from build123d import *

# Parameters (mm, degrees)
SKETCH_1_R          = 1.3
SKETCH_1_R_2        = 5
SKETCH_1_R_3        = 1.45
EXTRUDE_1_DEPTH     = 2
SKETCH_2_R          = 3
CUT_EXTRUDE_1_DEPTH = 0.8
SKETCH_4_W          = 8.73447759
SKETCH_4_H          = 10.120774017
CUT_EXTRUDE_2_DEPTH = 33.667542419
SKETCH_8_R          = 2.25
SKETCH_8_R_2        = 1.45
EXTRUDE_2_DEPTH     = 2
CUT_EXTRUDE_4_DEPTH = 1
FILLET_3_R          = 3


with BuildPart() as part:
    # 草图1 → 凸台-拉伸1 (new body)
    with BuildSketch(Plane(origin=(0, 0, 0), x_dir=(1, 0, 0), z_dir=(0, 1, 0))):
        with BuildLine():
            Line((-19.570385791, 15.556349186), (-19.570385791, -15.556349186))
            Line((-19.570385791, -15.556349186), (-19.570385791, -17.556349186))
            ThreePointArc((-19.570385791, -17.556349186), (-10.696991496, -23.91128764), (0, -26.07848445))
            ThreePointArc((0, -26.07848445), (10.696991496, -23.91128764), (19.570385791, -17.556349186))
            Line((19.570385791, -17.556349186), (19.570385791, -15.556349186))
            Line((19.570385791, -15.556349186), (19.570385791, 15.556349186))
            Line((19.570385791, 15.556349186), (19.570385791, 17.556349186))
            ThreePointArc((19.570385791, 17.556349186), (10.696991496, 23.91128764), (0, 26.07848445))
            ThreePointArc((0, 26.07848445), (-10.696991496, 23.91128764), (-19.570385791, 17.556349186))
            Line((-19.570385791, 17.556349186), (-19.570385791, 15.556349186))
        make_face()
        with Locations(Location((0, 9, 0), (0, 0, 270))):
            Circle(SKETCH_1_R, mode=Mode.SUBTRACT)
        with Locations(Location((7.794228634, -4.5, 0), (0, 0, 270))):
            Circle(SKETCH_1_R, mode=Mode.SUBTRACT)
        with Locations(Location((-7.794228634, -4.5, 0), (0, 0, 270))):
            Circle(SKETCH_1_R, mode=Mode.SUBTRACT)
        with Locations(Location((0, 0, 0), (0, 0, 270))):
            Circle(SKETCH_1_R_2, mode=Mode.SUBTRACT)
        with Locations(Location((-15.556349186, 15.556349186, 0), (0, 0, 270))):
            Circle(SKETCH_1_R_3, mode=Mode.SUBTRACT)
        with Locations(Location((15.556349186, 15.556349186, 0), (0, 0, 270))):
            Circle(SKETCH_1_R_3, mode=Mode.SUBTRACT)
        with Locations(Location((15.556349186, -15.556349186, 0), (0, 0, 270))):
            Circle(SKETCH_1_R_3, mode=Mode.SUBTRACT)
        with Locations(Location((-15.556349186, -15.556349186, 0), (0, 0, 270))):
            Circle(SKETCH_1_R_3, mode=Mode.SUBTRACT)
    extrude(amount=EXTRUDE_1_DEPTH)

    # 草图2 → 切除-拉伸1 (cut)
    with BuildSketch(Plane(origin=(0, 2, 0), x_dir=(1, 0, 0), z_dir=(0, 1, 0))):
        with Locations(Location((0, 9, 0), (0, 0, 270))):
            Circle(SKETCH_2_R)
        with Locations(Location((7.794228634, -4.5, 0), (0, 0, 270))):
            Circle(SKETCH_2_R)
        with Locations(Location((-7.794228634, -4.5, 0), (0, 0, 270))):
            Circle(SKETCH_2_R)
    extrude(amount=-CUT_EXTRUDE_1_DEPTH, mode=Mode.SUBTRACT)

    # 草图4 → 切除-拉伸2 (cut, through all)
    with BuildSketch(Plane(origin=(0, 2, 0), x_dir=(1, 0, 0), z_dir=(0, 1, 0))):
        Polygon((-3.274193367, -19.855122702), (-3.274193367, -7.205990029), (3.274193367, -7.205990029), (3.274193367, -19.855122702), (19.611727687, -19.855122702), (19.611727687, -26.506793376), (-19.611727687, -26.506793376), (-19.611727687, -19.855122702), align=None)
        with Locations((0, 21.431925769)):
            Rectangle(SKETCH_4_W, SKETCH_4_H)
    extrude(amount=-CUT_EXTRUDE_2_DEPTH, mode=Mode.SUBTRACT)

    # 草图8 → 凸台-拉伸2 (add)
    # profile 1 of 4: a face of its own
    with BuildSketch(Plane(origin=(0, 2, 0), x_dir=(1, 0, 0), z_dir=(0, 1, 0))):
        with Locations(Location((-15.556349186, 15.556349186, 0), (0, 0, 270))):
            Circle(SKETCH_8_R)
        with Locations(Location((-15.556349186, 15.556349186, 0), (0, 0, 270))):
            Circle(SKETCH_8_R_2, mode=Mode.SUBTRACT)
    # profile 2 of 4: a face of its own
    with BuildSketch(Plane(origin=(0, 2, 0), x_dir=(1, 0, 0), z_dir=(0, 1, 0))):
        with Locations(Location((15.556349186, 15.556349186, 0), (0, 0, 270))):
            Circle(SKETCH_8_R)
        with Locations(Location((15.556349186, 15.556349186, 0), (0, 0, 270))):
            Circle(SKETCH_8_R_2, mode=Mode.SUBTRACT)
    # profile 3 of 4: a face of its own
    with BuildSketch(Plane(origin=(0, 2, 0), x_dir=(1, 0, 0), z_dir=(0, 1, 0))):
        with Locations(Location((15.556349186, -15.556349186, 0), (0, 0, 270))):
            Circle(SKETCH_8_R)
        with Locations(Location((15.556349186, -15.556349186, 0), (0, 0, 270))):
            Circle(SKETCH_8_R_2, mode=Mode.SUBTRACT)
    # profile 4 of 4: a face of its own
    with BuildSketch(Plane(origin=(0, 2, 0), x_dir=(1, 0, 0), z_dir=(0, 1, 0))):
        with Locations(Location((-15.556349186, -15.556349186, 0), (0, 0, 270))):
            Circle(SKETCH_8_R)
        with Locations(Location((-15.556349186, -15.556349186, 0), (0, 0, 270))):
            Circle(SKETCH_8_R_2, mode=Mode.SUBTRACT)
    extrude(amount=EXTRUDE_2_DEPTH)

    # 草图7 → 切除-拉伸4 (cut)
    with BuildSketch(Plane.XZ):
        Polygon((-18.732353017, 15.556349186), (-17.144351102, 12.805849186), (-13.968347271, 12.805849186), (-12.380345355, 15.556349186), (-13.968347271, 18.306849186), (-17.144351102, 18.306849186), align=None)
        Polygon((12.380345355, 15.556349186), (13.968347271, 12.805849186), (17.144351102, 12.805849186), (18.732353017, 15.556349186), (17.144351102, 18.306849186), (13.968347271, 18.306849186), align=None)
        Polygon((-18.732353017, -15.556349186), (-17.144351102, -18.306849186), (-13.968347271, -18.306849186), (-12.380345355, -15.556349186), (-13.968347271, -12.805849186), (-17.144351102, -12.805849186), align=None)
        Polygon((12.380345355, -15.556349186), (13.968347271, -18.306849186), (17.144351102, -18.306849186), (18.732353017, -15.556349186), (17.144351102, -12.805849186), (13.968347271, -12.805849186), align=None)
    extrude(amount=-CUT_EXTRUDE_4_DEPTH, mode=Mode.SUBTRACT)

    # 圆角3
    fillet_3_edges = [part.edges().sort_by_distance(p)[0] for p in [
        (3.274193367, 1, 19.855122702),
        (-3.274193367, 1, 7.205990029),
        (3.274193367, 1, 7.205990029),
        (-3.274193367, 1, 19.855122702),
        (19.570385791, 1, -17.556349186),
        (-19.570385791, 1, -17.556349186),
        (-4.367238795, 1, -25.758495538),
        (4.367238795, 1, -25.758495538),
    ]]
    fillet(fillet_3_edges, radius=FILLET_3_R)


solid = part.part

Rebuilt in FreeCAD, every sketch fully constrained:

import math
import FreeCAD as App
import Part
import Sketcher
Q = App.Units.Quantity


def edges_at(feature, points):
    """Names of the edges that pass closest to the given points."""
    edges = feature.Shape.Edges
    near = lambda p: min(range(len(edges)), key=lambda i: edges[i].distToShape(Part.Vertex(*p))[0])
    return sorted({f"Edge{near(p) + 1}" for p in points})


def add_polygon(sketch, points):
    """Adds a closed chain of lines whose ends are joined by coincident constraints."""
    first, n = sketch.GeometryCount, len(points)
    for a, b in zip(points, points[1:] + points[:1]):
        sketch.addGeometry(Part.LineSegment(App.Vector(*a, 0), App.Vector(*b, 0)), False)
    for i in range(n):
        sketch.addConstraint(Sketcher.Constraint("Coincident", first + i, 2, first + (i + 1) % n, 1))

doc = App.newDocument("Part")
params = doc.addObject("Spreadsheet::Sheet", "Params")
for row, (alias, value) in enumerate([
    ("sketch1_diameter", "10 mm"),
    ("sketch1_diameter2", "2.9 mm"),
    ("sketch1_diameter3", "2.6 mm"),
    ("pad1_length", "2 mm"),
    ("sketch2_diameter", "6 mm"),
    ("pocket1_length", "0.8 mm"),
    ("sketch4_diameter", "4.5 mm"),
    ("sketch4_diameter2", "2.9 mm"),
    ("pad2_length", "2 mm"),
    ("pocket3_length", "1 mm"),
    ("fillet_radius", "3 mm"),
], start=1):
    params.set(f"A{row}", alias)
    params.set(f"B{row}", "=" + value)
    params.setAlias(f"B{row}", alias)

body = doc.addObject("PartDesign::Body", "Body")

# Sketch on XZ plane
sketch1 = doc.addObject("Sketcher::SketchObject", "Sketch")
body.addObject(sketch1)
sketch1.AttachmentSupport = (doc.XZ_Plane, [""])
sketch1.MapMode = "FlatFace"
sketch1.addGeometry(Part.ArcOfCircle(Part.Circle(App.Vector(-0.284564, 0, 0), App.Vector(0, 0, 1), 26.080037), math.radians(89.374823), math.radians(137.687648)), False)
sketch1.addGeometry(Part.ArcOfCircle(Part.Circle(App.Vector(0.284564, 0, 0), App.Vector(0, 0, 1), 26.080037), math.radians(42.312352), math.radians(90.625177)), False)
sketch1.addGeometry(Part.LineSegment(App.Vector(19.570386, 17.556349, 0), App.Vector(19.570386, -17.556349, 0)), False)
sketch1.addGeometry(Part.ArcOfCircle(Part.Circle(App.Vector(0.284564, 0, 0), App.Vector(0, 0, 1), 26.080037), math.radians(-90.625177), math.radians(-42.312352)), False)
sketch1.addGeometry(Part.ArcOfCircle(Part.Circle(App.Vector(-0.284564, 0, 0), App.Vector(0, 0, 1), 26.080037), math.radians(-137.687648), math.radians(-89.374823)), False)
sketch1.addGeometry(Part.LineSegment(App.Vector(-19.570386, -17.556349, 0), App.Vector(-19.570386, 17.556349, 0)), False)
sketch1.addGeometry(Part.Circle(App.Vector(-15.556349, 15.556349, 0), App.Vector(0, 0, 1), 1.45), False)
sketch1.addGeometry(Part.Circle(App.Vector(-7.794229, 4.5, 0), App.Vector(0, 0, 1), 1.3), False)
sketch1.addGeometry(Part.Circle(App.Vector(15.556349, 15.556349, 0), App.Vector(0, 0, 1), 1.45), False)
sketch1.addGeometry(Part.Circle(App.Vector(7.794229, 4.5, 0), App.Vector(0, 0, 1), 1.3), False)
sketch1.addGeometry(Part.Circle(App.Vector(-15.556349, -15.556349, 0), App.Vector(0, 0, 1), 1.45), False)
sketch1.addGeometry(Part.Circle(App.Vector(0, 0, 0), App.Vector(0, 0, 1), 5), False)
sketch1.addGeometry(Part.Circle(App.Vector(0, -9, 0), App.Vector(0, 0, 1), 1.3), False)
sketch1.addGeometry(Part.Circle(App.Vector(15.556349, -15.556349, 0), App.Vector(0, 0, 1), 1.45), False)
sketch1.addConstraint(Sketcher.Constraint("Coincident", 0, 1, 1, 2))
sketch1.addConstraint(Sketcher.Constraint("Coincident", 1, 1, 2, 1))
sketch1.addConstraint(Sketcher.Constraint("Coincident", 2, 2, 3, 2))
sketch1.addConstraint(Sketcher.Constraint("Coincident", 3, 1, 4, 2))
sketch1.addConstraint(Sketcher.Constraint("Coincident", 4, 1, 5, 1))
sketch1.addConstraint(Sketcher.Constraint("Coincident", 5, 2, 0, 2))
sketch1.addConstraint(Sketcher.Constraint("Vertical", 2))
sketch1.addConstraint(Sketcher.Constraint("Vertical", 5))
sketch1.addConstraint(Sketcher.Constraint("Coincident", 11, 3, -1, 1))
sketch1.addConstraint(Sketcher.Constraint("Coincident", 3, 3, 1, 3))
sketch1.addConstraint(Sketcher.Constraint("Coincident", 4, 3, 0, 3))
sketch1.addConstraint(Sketcher.Constraint("Equal", 0, 1))
sketch1.addConstraint(Sketcher.Constraint("Equal", 1, 3))
sketch1.addConstraint(Sketcher.Constraint("Equal", 3, 4))
sketch1.addConstraint(Sketcher.Constraint("Equal", 6, 8))
sketch1.addConstraint(Sketcher.Constraint("Equal", 7, 9))
sketch1.addConstraint(Sketcher.Constraint("Equal", 8, 10))
sketch1.addConstraint(Sketcher.Constraint("Equal", 9, 12))
sketch1.addConstraint(Sketcher.Constraint("Equal", 10, 13))
sketch1.addConstraint(Sketcher.Constraint("Symmetric", 0, 3, 1, 3, -1, 1))
sketch1.addConstraint(Sketcher.Constraint("Symmetric", 8, 3, 10, 3, -1, 1))
sketch1.addConstraint(Sketcher.Constraint("Symmetric", 6, 3, 13, 3, -1, 1))
sketch1.addConstraint(Sketcher.Constraint("Symmetric", 6, 3, 8, 3, -2))
sketch1.addConstraint(Sketcher.Constraint("Symmetric", 7, 3, 9, 3, -2))
sketch1.addConstraint(Sketcher.Constraint("Symmetric", 2, 2, 4, 1, -2))
sketch1.addConstraint(Sketcher.Constraint("PointOnObject", 12, 3, -2))
sketch1.addConstraint(Sketcher.Constraint("Diameter", 11, 10.0))
sketch1.addConstraint(Sketcher.Constraint("Diameter", 6, 2.9))
sketch1.addConstraint(Sketcher.Constraint("Diameter", 7, 2.6))
sketch1.addConstraint(Sketcher.Constraint("DistanceY", 12, 3, -1, 1, 9.0))
sketch1.addConstraint(Sketcher.Constraint("DistanceY", 8, 3, 1, 1, 2.0))
sketch1.addConstraint(Sketcher.Constraint("DistanceY", -1, 1, 7, 3, 4.5))
sketch1.addConstraint(Sketcher.Constraint("DistanceY", 2, 2, 2, 1, 35.112698))
sketch1.addConstraint(Sketcher.Constraint("Radius", 0, 26.080037))
sketch1.addConstraint(Sketcher.Constraint("DistanceX", 6, 3, -1, 1, 15.556349))
sketch1.addConstraint(Sketcher.Constraint("DistanceX", 7, 3, -1, 1, 7.794229))
sketch1.addConstraint(Sketcher.Constraint("DistanceX", 0, 3, -1, 1, 0.284564))
sketch1.setExpression("Constraints[26]", "Params.sketch1_diameter")
sketch1.setExpression("Constraints[27]", "Params.sketch1_diameter2")
sketch1.setExpression("Constraints[28]", "Params.sketch1_diameter3")
pad1 = doc.addObject("PartDesign::Pad", "Pad")
body.addObject(pad1)
pad1.Profile = sketch1
pad1.setExpression("Length", "Params.pad1_length")
pad1.Reversed = True

# Sketch on XZ plane
sketch2 = doc.addObject("Sketcher::SketchObject", "Sketch001")
body.addObject(sketch2)
sketch2.AttachmentSupport = (doc.XZ_Plane, [""])
sketch2.MapMode = "FlatFace"
sketch2.AttachmentOffset = App.Placement(App.Vector(0, 0, -2), App.Rotation())
sketch2.addGeometry(Part.Circle(App.Vector(0, -9, 0), App.Vector(0, 0, 1), 3), False)
sketch2.addGeometry(Part.Circle(App.Vector(7.794229, 4.5, 0), App.Vector(0, 0, 1), 3), False)
sketch2.addGeometry(Part.Circle(App.Vector(-7.794229, 4.5, 0), App.Vector(0, 0, 1), 3), False)
sketch2.addConstraint(Sketcher.Constraint("Equal", 0, 1))
sketch2.addConstraint(Sketcher.Constraint("Equal", 1, 2))
sketch2.addConstraint(Sketcher.Constraint("Symmetric", 1, 3, 2, 3, -2))
sketch2.addConstraint(Sketcher.Constraint("PointOnObject", 0, 3, -2))
sketch2.addConstraint(Sketcher.Constraint("Diameter", 0, 6.0))
sketch2.addConstraint(Sketcher.Constraint("DistanceY", 0, 3, -1, 1, 9.0))
sketch2.addConstraint(Sketcher.Constraint("DistanceY", -1, 1, 1, 3, 4.5))
sketch2.addConstraint(Sketcher.Constraint("DistanceX", -1, 1, 1, 3, 7.794229))
sketch2.setExpression("Constraints[4]", "Params.sketch2_diameter")
pocket1 = doc.addObject("PartDesign::Pocket", "Pocket")
body.addObject(pocket1)
pocket1.Profile = sketch2
pocket1.setExpression("Length", "Params.pocket1_length")
pocket1.Reversed = True

# Sketch on XZ plane
sketch3 = doc.addObject("Sketcher::SketchObject", "Sketch002")
body.addObject(sketch3)
sketch3.AttachmentSupport = (doc.XZ_Plane, [""])
sketch3.MapMode = "FlatFace"
sketch3.AttachmentOffset = App.Placement(App.Vector(0, 0, -2), App.Rotation())
add_polygon(sketch3, [(-3.274193, 7.20599), (-3.274193, 19.855123), (-19.611728, 19.855123), (-19.611728, 26.506793), (19.611728, 26.506793), (19.611728, 19.855123), (3.274193, 19.855123), (3.274193, 7.20599)])  # lines 0-7
add_polygon(sketch3, [(-4.367239, -26.492313), (-4.367239, -16.371539), (4.367239, -16.371539), (4.367239, -26.492313)])  # lines 8-11
sketch3.addConstraint(Sketcher.Constraint("Vertical", 0))
sketch3.addConstraint(Sketcher.Constraint("Horizontal", 1))
sketch3.addConstraint(Sketcher.Constraint("Vertical", 2))
sketch3.addConstraint(Sketcher.Constraint("Horizontal", 3))
sketch3.addConstraint(Sketcher.Constraint("Vertical", 4))
sketch3.addConstraint(Sketcher.Constraint("Horizontal", 5))
sketch3.addConstraint(Sketcher.Constraint("Vertical", 6))
sketch3.addConstraint(Sketcher.Constraint("Horizontal", 7))
sketch3.addConstraint(Sketcher.Constraint("Vertical", 8))
sketch3.addConstraint(Sketcher.Constraint("Horizontal", 9))
sketch3.addConstraint(Sketcher.Constraint("Vertical", 10))
sketch3.addConstraint(Sketcher.Constraint("Horizontal", 11))
sketch3.addConstraint(Sketcher.Constraint("Symmetric", 1, 2, 4, 2, -2))
sketch3.addConstraint(Sketcher.Constraint("Equal", 1, 5))
sketch3.addConstraint(Sketcher.Constraint("DistanceY", 2, 1, 2, 2, 6.651671))
sketch3.addConstraint(Sketcher.Constraint("DistanceX", 1, 2, 1, 1, 16.337534))
sketch3.addConstraint(Sketcher.Constraint("DistanceX", 3, 1, 3, 2, 39.223455))
sketch3.addConstraint(Sketcher.Constraint("DistanceX", 9, 1, 9, 2, 8.734478))
sketch3.addConstraint(Sketcher.Constraint("DistanceY", 0, 1, 0, 2, 12.649133))
sketch3.addConstraint(Sketcher.Constraint("DistanceY", 8, 1, 8, 2, 10.120774))
sketch3.addConstraint(Sketcher.Constraint("DistanceY", -1, 1, 6, 2, 7.20599))
sketch3.addConstraint(Sketcher.Constraint("DistanceX", 8, 2, -1, 1, 4.367239))
sketch3.addConstraint(Sketcher.Constraint("DistanceY", 8, 2, -1, 1, 16.371539))
pocket2 = doc.addObject("PartDesign::Pocket", "Pocket001")
body.addObject(pocket2)
pocket2.Profile = sketch3
pocket2.Type = "ThroughAll"
pocket2.Reversed = True

# Sketch on XZ plane
sketch4 = doc.addObject("Sketcher::SketchObject", "Sketch003")
body.addObject(sketch4)
sketch4.AttachmentSupport = (doc.XZ_Plane, [""])
sketch4.MapMode = "FlatFace"
sketch4.AttachmentOffset = App.Placement(App.Vector(0, 0, -2), App.Rotation())
sketch4.addGeometry(Part.Circle(App.Vector(-15.556349, -15.556349, 0), App.Vector(0, 0, 1), 2.25), False)
sketch4.addGeometry(Part.Circle(App.Vector(-15.556349, -15.556349, 0), App.Vector(0, 0, 1), 1.45), False)
sketch4.addGeometry(Part.Circle(App.Vector(15.556349, -15.556349, 0), App.Vector(0, 0, 1), 2.25), False)
sketch4.addGeometry(Part.Circle(App.Vector(15.556349, -15.556349, 0), App.Vector(0, 0, 1), 1.45), False)
sketch4.addGeometry(Part.Circle(App.Vector(15.556349, 15.556349, 0), App.Vector(0, 0, 1), 2.25), False)
sketch4.addGeometry(Part.Circle(App.Vector(15.556349, 15.556349, 0), App.Vector(0, 0, 1), 1.45), False)
sketch4.addGeometry(Part.Circle(App.Vector(-15.556349, 15.556349, 0), App.Vector(0, 0, 1), 2.25), False)
sketch4.addGeometry(Part.Circle(App.Vector(-15.556349, 15.556349, 0), App.Vector(0, 0, 1), 1.45), False)
sketch4.addConstraint(Sketcher.Constraint("Coincident", 1, 3, 0, 3))
sketch4.addConstraint(Sketcher.Constraint("Coincident", 3, 3, 2, 3))
sketch4.addConstraint(Sketcher.Constraint("Coincident", 5, 3, 4, 3))
sketch4.addConstraint(Sketcher.Constraint("Coincident", 7, 3, 6, 3))
sketch4.addConstraint(Sketcher.Constraint("Equal", 0, 2))
sketch4.addConstraint(Sketcher.Constraint("Equal", 1, 3))
sketch4.addConstraint(Sketcher.Constraint("Equal", 2, 4))
sketch4.addConstraint(Sketcher.Constraint("Equal", 3, 5))
sketch4.addConstraint(Sketcher.Constraint("Equal", 4, 6))
sketch4.addConstraint(Sketcher.Constraint("Equal", 5, 7))
sketch4.addConstraint(Sketcher.Constraint("Symmetric", 0, 3, 4, 3, -1, 1))
sketch4.addConstraint(Sketcher.Constraint("Symmetric", 2, 3, 6, 3, -1, 1))
sketch4.addConstraint(Sketcher.Constraint("Symmetric", 0, 3, 2, 3, -2))
sketch4.addConstraint(Sketcher.Constraint("Diameter", 0, 4.5))
sketch4.addConstraint(Sketcher.Constraint("Diameter", 1, 2.9))
sketch4.addConstraint(Sketcher.Constraint("DistanceX", 0, 3, 2, 3, 31.112698))
sketch4.addConstraint(Sketcher.Constraint("DistanceY", 2, 3, 4, 3, 31.112698))
sketch4.setExpression("Constraints[13]", "Params.sketch4_diameter")
sketch4.setExpression("Constraints[14]", "Params.sketch4_diameter2")
pad2 = doc.addObject("PartDesign::Pad", "Pad001")
body.addObject(pad2)
pad2.Profile = sketch4
pad2.setExpression("Length", "Params.pad2_length")
pad2.Reversed = True

# Sketch on XZ plane
sketch5 = doc.addObject("Sketcher::SketchObject", "Sketch004")
body.addObject(sketch5)
sketch5.AttachmentSupport = (doc.XZ_Plane, [""])
sketch5.MapMode = "FlatFace"
add_polygon(sketch5, [(-18.732353, 15.556349), (-17.144351, 12.805849), (-13.968347, 12.805849), (-12.380345, 15.556349), (-13.968347, 18.306849), (-17.144351, 18.306849)])  # lines 0-5
add_polygon(sketch5, [(12.380345, 15.556349), (13.968347, 12.805849), (17.144351, 12.805849), (18.732353, 15.556349), (17.144351, 18.306849), (13.968347, 18.306849)])  # lines 6-11
add_polygon(sketch5, [(-18.732353, -15.556349), (-17.144351, -18.306849), (-13.968347, -18.306849), (-12.380345, -15.556349), (-13.968347, -12.805849), (-17.144351, -12.805849)])  # lines 12-17
add_polygon(sketch5, [(12.380345, -15.556349), (13.968347, -18.306849), (17.144351, -18.306849), (18.732353, -15.556349), (17.144351, -12.805849), (13.968347, -12.805849)])  # lines 18-23
sketch5.addConstraint(Sketcher.Constraint("Horizontal", 1))
sketch5.addConstraint(Sketcher.Constraint("Horizontal", 4))
sketch5.addConstraint(Sketcher.Constraint("Horizontal", 7))
sketch5.addConstraint(Sketcher.Constraint("Horizontal", 10))
sketch5.addConstraint(Sketcher.Constraint("Horizontal", 13))
sketch5.addConstraint(Sketcher.Constraint("Horizontal", 16))
sketch5.addConstraint(Sketcher.Constraint("Horizontal", 19))
sketch5.addConstraint(Sketcher.Constraint("Horizontal", 22))
sketch5.addConstraint(Sketcher.Constraint("Symmetric", 9, 2, 12, 2, -1, 1))
sketch5.addConstraint(Sketcher.Constraint("Symmetric", 11, 2, 14, 2, -1, 1))
sketch5.addConstraint(Sketcher.Constraint("Symmetric", 6, 2, 15, 2, -1, 1))
sketch5.addConstraint(Sketcher.Constraint("Symmetric", 8, 2, 17, 2, -1, 1))
sketch5.addConstraint(Sketcher.Constraint("Symmetric", 3, 2, 18, 2, -1, 1))
sketch5.addConstraint(Sketcher.Constraint("Symmetric", 5, 2, 20, 2, -1, 1))
sketch5.addConstraint(Sketcher.Constraint("Symmetric", 0, 2, 21, 2, -1, 1))
sketch5.addConstraint(Sketcher.Constraint("Symmetric", 2, 2, 23, 2, -1, 1))
sketch5.addConstraint(Sketcher.Constraint("Symmetric", 1, 2, 6, 2, -2))
sketch5.addConstraint(Sketcher.Constraint("Symmetric", 5, 2, 8, 2, -2))
sketch5.addConstraint(Sketcher.Constraint("Symmetric", 4, 2, 9, 2, -2))
sketch5.addConstraint(Sketcher.Constraint("Symmetric", 2, 2, 11, 2, -2))
sketch5.addConstraint(Sketcher.Constraint("Parallel", 0, 3))
sketch5.addConstraint(Sketcher.Constraint("Parallel", 2, 5))
sketch5.addConstraint(Sketcher.Constraint("Parallel", 3, 6))
sketch5.addConstraint(Sketcher.Constraint("Parallel", 5, 8))
sketch5.addConstraint(Sketcher.Constraint("Parallel", 8, 11))
sketch5.addConstraint(Sketcher.Constraint("Parallel", 11, 14))
sketch5.addConstraint(Sketcher.Constraint("Parallel", 14, 17))
sketch5.addConstraint(Sketcher.Constraint("Parallel", 17, 20))
sketch5.addConstraint(Sketcher.Constraint("Parallel", 20, 23))
sketch5.addConstraint(Sketcher.Constraint("Horizontal", 2, 2, 5, 2))
sketch5.addConstraint(Sketcher.Constraint("Vertical", 1, 2, 3, 2))
sketch5.addConstraint(Sketcher.Constraint("Angle", 0, Q("-60 deg")))
sketch5.addConstraint(Sketcher.Constraint("DistanceX", 1, 2, 2, 2, 1.588002))
sketch5.addConstraint(Sketcher.Constraint("DistanceX", 0, 2, 6, 2, 31.112698))
sketch5.addConstraint(Sketcher.Constraint("DistanceY", 12, 2, 0, 2, 31.112698))
sketch5.addConstraint(Sketcher.Constraint("DistanceX", 1, 1, 1, 2, 3.176004))
pocket3 = doc.addObject("PartDesign::Pocket", "Pocket002")
body.addObject(pocket3)
pocket3.Profile = sketch5
pocket3.setExpression("Length", "Params.pocket3_length")
doc.recompute()

fillet = doc.addObject("PartDesign::Fillet", "Fillet")
body.addObject(fillet)
fillet.Base = (pocket3, edges_at(pocket3, [
    (3.274, 1, 19.855),
    (-3.274, 1, 7.206),
    (3.274, 1, 7.206),
    (-3.274, 1, 19.855),
    (19.57, 1, -17.556),
    (-19.57, 1, -17.556),
    (-4.367, 1, -25.758),
    (4.367, 1, -25.758),
]))
fillet.setExpression("Radius", "Params.fillet_radius")

doc.recompute()
